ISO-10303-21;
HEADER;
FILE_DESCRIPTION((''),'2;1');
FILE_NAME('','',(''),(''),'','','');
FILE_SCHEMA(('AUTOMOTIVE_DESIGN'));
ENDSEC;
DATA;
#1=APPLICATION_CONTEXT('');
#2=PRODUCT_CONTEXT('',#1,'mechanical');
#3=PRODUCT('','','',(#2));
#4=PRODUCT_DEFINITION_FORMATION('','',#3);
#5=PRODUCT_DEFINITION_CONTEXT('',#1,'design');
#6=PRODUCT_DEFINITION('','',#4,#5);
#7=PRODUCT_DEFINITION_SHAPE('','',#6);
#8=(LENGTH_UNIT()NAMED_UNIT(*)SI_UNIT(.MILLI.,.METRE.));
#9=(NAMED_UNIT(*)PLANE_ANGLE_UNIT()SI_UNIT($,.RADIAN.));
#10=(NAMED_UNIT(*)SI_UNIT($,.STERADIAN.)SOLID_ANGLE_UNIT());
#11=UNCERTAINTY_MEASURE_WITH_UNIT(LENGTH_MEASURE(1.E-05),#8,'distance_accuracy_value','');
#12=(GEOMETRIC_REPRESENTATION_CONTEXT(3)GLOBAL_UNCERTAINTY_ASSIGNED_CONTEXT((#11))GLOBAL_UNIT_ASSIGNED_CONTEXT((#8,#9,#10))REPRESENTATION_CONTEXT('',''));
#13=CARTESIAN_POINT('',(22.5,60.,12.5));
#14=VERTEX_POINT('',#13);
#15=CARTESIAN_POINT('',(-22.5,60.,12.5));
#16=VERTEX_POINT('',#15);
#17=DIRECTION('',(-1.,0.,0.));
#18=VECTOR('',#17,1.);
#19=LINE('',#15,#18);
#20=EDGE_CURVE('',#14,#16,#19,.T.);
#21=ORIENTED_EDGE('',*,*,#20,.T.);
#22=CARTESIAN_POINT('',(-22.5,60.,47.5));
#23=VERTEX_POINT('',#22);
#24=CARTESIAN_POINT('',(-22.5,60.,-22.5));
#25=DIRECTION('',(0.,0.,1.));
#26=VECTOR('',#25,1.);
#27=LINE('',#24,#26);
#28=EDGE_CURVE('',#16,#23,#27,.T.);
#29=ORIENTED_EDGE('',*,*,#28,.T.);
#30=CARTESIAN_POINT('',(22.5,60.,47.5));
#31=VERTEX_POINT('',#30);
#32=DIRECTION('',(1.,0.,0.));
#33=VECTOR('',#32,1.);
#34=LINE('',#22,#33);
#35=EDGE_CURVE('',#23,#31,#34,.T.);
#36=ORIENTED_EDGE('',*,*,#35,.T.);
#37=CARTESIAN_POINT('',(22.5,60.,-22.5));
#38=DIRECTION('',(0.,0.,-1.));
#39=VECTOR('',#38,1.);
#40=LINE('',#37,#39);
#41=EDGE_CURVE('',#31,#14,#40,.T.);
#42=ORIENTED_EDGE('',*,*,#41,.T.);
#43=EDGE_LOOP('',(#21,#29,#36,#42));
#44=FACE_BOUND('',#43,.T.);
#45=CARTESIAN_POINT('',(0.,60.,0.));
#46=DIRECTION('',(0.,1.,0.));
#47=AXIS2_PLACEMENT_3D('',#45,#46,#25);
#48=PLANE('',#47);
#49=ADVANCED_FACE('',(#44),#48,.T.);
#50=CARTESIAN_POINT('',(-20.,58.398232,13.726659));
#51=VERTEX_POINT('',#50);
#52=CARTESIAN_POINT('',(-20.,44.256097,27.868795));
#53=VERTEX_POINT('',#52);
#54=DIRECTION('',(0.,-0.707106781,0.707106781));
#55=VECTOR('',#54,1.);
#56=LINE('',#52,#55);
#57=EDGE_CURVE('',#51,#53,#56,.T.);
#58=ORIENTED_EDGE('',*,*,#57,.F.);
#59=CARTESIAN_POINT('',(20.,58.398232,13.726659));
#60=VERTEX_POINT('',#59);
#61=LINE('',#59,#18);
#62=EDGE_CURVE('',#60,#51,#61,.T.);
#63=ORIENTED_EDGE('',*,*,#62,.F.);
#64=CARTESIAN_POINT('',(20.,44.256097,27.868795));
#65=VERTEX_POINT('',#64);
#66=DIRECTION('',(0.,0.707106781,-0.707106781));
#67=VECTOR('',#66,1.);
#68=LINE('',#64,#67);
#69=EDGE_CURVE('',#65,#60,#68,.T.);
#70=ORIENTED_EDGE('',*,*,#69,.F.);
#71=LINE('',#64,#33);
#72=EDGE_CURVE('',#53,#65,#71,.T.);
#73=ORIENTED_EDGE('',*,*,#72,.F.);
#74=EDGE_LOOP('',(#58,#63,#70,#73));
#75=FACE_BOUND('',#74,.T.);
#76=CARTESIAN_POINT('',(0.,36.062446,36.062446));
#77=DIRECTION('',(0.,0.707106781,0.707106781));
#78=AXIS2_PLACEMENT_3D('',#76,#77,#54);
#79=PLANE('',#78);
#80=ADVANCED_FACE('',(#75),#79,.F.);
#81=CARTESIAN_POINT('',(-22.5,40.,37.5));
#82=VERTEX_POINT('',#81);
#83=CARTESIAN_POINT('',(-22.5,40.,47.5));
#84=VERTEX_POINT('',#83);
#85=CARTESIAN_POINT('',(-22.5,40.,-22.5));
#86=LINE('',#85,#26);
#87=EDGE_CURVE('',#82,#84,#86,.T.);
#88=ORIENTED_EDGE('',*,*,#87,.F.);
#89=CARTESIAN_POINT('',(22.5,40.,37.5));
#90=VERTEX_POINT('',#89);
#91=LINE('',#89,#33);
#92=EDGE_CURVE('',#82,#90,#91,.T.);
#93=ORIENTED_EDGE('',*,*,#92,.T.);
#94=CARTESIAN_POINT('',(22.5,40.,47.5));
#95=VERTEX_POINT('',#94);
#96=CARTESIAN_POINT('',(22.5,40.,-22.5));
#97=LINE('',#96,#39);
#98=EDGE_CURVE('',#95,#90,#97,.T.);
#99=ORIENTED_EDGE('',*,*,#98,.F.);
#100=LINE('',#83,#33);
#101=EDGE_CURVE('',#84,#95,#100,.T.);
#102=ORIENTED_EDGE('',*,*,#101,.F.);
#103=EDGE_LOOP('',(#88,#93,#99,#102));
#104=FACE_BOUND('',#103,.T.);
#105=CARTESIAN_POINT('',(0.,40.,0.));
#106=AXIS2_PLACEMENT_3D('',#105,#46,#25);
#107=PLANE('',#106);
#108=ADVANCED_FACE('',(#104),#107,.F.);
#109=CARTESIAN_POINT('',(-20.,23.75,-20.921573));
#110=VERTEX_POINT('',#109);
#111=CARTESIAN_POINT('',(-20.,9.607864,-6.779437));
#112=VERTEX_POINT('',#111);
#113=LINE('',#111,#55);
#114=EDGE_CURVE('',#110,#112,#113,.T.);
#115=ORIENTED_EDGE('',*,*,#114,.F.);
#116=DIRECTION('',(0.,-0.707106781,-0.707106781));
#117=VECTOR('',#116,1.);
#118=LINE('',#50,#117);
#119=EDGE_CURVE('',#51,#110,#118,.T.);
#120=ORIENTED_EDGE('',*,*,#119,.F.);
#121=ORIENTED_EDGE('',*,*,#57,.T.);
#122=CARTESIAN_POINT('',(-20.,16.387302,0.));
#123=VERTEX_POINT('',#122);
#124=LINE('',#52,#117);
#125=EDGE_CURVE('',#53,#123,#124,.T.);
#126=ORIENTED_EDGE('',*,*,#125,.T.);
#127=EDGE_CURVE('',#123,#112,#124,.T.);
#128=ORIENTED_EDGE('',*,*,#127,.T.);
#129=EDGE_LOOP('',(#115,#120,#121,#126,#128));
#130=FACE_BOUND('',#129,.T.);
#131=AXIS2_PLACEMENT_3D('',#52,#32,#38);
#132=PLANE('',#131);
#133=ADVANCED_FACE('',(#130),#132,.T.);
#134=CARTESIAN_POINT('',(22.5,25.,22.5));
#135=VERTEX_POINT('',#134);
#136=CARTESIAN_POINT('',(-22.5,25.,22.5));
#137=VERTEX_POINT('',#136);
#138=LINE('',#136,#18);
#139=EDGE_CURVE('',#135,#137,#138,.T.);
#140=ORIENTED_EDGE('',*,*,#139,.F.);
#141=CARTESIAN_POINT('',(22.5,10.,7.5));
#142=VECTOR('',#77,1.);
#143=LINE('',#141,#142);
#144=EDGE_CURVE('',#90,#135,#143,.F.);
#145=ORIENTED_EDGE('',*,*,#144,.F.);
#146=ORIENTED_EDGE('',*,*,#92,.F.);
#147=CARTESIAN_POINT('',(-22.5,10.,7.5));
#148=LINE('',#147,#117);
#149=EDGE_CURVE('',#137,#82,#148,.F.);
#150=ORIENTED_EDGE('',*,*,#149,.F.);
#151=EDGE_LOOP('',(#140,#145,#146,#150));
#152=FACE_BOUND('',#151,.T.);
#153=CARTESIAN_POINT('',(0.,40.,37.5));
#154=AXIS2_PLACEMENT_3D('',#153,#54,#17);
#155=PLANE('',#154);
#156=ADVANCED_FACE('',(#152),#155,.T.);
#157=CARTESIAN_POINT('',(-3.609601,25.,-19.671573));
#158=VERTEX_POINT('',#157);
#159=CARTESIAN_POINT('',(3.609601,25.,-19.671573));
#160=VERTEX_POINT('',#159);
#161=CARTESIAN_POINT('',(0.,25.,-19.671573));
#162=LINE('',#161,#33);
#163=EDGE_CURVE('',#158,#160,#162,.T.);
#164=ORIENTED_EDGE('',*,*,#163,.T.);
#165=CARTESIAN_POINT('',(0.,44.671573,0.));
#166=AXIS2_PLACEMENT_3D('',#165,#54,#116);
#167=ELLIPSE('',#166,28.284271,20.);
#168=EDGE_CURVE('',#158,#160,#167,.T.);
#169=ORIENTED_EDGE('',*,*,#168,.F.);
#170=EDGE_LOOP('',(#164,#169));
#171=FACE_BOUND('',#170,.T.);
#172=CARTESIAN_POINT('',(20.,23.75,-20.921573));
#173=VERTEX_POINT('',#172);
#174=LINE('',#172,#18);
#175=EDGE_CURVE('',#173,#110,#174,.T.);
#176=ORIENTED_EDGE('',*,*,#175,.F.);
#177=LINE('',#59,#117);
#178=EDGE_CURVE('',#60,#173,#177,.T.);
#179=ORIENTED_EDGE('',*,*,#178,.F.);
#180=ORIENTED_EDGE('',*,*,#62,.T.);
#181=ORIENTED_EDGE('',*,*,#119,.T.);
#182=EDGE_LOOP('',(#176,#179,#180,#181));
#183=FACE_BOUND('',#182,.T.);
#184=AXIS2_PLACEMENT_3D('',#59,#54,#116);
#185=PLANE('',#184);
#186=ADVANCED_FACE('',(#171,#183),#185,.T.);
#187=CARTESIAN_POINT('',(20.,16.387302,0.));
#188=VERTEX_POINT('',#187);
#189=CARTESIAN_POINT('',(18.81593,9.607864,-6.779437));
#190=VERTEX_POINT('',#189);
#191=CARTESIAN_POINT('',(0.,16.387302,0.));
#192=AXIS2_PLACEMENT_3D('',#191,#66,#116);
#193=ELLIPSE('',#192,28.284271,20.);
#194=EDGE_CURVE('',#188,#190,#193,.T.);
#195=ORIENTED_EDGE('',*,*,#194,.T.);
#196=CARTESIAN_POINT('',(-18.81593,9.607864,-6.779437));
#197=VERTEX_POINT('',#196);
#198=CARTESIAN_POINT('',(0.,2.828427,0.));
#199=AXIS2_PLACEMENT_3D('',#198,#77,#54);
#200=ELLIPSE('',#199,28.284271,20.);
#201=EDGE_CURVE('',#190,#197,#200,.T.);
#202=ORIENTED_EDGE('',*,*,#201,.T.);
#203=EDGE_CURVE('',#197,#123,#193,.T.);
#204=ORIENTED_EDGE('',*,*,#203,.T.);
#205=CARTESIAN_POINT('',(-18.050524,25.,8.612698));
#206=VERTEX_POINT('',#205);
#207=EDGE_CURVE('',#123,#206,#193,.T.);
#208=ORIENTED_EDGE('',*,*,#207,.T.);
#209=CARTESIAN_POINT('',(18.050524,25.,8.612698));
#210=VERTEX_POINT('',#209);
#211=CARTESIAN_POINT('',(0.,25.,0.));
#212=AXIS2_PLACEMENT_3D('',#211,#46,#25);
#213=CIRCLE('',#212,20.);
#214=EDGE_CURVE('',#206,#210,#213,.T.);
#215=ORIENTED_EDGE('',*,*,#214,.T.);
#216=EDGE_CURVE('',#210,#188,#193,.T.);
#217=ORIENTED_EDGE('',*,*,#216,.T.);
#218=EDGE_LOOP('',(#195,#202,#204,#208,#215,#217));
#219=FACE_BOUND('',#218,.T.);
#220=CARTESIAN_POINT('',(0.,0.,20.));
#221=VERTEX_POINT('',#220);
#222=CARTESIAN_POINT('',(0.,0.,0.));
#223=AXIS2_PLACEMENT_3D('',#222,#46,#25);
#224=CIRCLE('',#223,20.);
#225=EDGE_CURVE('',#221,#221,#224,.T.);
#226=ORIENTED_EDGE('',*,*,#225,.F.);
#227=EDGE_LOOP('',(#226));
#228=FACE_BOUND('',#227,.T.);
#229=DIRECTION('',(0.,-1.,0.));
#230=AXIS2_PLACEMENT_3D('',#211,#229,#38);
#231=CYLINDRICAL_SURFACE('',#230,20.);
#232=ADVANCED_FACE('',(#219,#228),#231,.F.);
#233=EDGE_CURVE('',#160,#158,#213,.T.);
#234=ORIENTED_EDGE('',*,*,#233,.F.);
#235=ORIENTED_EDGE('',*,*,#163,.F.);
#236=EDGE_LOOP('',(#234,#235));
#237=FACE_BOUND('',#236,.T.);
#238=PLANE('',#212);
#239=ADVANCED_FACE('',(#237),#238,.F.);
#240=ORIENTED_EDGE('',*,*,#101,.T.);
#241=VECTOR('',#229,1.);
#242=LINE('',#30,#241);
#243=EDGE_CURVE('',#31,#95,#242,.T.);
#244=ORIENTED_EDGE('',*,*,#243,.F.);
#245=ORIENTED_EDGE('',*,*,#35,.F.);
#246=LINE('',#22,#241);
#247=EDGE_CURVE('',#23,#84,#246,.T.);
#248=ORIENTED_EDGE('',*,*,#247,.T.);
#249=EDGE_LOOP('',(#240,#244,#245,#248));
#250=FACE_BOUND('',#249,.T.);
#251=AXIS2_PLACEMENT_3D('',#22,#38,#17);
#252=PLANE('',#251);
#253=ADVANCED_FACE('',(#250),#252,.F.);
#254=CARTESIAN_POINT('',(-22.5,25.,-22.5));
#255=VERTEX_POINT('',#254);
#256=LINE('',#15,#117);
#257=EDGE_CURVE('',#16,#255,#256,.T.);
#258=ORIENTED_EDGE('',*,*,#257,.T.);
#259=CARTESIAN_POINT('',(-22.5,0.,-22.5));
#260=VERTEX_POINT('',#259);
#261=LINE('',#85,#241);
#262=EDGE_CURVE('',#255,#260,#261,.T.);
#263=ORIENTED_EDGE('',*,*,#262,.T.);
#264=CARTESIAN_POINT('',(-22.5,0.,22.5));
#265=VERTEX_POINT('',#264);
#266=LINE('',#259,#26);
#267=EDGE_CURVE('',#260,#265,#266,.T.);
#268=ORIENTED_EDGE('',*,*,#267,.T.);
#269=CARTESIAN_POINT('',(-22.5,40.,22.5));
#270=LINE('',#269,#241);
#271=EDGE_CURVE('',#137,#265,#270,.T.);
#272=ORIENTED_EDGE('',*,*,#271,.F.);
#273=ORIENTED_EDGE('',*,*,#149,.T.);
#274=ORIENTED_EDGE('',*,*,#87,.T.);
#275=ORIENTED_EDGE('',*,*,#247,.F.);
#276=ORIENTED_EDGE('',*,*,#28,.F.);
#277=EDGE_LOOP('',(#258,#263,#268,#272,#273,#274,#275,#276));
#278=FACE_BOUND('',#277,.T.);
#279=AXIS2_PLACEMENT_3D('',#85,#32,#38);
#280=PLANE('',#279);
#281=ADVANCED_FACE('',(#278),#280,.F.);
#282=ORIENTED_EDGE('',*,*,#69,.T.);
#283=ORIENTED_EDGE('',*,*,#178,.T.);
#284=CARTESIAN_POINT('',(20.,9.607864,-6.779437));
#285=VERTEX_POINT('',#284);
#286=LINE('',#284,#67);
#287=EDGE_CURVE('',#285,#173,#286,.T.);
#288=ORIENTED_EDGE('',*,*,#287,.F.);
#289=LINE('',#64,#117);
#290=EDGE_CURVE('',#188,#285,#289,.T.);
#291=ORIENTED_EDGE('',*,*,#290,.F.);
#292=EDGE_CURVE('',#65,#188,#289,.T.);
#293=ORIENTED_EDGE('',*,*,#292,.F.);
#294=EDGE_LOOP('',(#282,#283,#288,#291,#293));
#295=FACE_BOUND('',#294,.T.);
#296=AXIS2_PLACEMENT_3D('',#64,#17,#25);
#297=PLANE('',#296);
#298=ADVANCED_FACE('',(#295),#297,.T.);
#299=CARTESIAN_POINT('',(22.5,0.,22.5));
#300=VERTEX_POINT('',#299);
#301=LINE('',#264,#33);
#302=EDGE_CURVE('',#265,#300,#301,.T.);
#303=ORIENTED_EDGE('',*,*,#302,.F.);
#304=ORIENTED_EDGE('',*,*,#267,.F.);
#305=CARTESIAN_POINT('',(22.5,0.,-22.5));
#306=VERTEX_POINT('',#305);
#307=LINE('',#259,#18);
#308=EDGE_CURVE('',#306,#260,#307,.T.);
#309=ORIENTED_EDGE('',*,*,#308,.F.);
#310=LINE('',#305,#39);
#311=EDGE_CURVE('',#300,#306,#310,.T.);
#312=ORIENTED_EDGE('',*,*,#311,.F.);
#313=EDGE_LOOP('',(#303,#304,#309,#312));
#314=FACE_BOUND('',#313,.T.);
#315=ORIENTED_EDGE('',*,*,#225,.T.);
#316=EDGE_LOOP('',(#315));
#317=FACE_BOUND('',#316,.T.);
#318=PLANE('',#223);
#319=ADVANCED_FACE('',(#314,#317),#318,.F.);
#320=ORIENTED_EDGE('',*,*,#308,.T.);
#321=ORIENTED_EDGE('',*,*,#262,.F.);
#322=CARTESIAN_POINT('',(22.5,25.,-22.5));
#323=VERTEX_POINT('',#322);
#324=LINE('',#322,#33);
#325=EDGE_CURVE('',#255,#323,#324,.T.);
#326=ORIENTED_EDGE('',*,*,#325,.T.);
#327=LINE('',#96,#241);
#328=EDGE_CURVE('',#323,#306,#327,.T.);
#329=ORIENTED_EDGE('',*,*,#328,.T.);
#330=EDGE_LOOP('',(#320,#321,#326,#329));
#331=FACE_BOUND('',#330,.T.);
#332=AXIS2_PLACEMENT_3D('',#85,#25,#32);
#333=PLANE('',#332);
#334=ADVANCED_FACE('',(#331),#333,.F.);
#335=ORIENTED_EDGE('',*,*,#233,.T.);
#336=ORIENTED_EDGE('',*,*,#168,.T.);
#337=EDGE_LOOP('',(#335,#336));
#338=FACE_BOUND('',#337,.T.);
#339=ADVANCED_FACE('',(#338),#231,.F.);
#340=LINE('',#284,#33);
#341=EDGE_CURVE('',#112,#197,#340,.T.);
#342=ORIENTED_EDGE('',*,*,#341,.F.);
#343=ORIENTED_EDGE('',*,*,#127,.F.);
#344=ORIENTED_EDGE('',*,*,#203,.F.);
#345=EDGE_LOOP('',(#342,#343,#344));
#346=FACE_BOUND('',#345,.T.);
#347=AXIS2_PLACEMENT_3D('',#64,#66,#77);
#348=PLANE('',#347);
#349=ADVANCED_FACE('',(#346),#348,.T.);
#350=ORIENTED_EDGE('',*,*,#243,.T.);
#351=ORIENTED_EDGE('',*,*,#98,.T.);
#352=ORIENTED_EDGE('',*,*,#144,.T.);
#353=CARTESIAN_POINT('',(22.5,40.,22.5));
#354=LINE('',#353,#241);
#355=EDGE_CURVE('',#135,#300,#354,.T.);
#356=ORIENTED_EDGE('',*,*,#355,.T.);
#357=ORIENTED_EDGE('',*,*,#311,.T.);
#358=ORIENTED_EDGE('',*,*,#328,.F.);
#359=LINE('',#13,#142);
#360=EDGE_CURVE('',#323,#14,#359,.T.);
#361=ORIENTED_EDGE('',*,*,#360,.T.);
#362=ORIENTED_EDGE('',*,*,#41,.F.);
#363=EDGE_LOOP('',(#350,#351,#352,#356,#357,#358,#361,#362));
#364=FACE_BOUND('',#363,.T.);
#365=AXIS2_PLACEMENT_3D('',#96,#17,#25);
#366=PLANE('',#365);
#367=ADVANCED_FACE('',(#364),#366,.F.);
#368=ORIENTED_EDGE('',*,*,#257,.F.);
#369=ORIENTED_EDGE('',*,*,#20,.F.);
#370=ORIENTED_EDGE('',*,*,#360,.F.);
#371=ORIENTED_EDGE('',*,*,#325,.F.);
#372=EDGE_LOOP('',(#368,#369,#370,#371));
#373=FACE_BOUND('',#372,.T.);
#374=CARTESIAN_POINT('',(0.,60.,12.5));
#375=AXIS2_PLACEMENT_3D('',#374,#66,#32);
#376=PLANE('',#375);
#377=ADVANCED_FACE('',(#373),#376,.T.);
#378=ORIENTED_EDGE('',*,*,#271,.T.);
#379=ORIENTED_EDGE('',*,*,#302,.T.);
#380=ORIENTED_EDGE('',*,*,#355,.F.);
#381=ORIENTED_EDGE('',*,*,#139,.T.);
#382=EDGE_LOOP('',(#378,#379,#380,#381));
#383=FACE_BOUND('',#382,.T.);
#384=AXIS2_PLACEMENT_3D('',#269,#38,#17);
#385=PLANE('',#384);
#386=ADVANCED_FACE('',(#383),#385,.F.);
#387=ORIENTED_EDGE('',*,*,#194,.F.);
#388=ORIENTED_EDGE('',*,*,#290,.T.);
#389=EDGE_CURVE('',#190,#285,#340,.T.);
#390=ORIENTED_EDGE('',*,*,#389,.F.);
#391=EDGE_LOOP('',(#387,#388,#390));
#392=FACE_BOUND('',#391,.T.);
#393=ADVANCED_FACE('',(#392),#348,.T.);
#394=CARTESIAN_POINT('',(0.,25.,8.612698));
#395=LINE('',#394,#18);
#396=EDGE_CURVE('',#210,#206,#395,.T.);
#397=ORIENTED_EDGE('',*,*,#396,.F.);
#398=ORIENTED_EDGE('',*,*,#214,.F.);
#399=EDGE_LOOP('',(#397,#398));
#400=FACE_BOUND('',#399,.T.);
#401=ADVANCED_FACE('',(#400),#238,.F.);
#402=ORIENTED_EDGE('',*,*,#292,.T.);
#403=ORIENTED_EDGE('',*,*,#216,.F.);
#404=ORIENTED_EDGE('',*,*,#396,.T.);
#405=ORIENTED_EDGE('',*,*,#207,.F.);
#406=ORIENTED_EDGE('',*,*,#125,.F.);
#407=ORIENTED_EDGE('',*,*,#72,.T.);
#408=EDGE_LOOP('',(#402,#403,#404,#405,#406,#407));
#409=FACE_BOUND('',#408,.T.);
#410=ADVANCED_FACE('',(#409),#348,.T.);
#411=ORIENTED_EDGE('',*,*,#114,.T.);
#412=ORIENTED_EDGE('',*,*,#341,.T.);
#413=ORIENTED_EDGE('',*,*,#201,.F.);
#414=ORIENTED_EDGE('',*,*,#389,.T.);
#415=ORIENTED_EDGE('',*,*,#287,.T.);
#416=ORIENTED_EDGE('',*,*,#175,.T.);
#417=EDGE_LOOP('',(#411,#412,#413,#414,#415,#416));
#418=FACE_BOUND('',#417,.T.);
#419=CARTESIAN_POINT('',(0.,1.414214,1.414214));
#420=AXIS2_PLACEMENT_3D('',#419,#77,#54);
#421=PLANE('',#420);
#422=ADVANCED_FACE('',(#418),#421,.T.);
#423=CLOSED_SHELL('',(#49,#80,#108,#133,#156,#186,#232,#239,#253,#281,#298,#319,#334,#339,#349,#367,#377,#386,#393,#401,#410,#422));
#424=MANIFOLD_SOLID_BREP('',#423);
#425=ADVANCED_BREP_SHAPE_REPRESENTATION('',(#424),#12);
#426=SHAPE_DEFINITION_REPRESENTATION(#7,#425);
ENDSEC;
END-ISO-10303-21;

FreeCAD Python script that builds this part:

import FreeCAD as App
import Part
import Sketcher

V = App.Vector
Q = App.Units.Quantity


def edges_at(feature, points):
    """Names of the edges that pass closest to the given points."""
    edges = feature.Shape.Edges
    near = lambda p: min(range(len(edges)), key=lambda i: edges[i].distToShape(Part.Vertex(*p))[0])
    return sorted({f"Edge{near(p) + 1}" for p in points})


def add_polygon(sketch, points):
    """Adds a closed chain of lines whose ends are joined by coincident constraints."""
    first, n = sketch.GeometryCount, len(points)
    for a, b in zip(points, points[1:] + points[:1]):
        sketch.addGeometry(Part.LineSegment(App.Vector(*a, 0), App.Vector(*b, 0)), False)
    for i in range(n):
        sketch.addConstraint(Sketcher.Constraint("Coincident", first + i, 2, first + (i + 1) % n, 1))

doc = App.newDocument("Part")
body = doc.addObject("PartDesign::Body", "Body")

sketch1 = doc.addObject("Sketcher::SketchObject", "Sketch")
body.addObject(sketch1)
sketch1.AttachmentSupport = (doc.XZ_Plane, [""])
sketch1.MapMode = "FlatFace"
add_polygon(sketch1, [(-22, -22), (-22, 22), (22, 22), (22, -22)])
sketch1.addConstraint(Sketcher.Constraint("Vertical", 0))
sketch1.addConstraint(Sketcher.Constraint("Horizontal", 1))
sketch1.addConstraint(Sketcher.Constraint("Vertical", 2))
sketch1.addConstraint(Sketcher.Constraint("Horizontal", 3))
sketch1.addConstraint(Sketcher.Constraint("Symmetric", 0, 2, 2, 2, -1, 1))
sketch1.addConstraint(Sketcher.Constraint("Equal", 3, 0))
sketch1.addConstraint(Sketcher.Constraint("DistanceX", 1, 1, 1, 2, Q("45 mm")))
pad1 = doc.addObject("PartDesign::Pad", "Pad")
body.addObject(pad1)
pad1.Profile = sketch1
pad1.Length = 40
pad1.Reversed = True

sketch2 = doc.addObject("Sketcher::SketchObject", "Sketch001")
body.addObject(sketch2)
sketch2.AttachmentSupport = (doc.XZ_Plane, [""])
sketch2.MapMode = "FlatFace"
sketch2.AttachmentOffset = App.Placement(V(0, 0, -40), App.Rotation())
add_polygon(sketch2, [(-22, -22), (-22, 48), (22, 48), (22, -22)])
sketch2.addConstraint(Sketcher.Constraint("Vertical", 0))
sketch2.addConstraint(Sketcher.Constraint("Horizontal", 1))
sketch2.addConstraint(Sketcher.Constraint("Vertical", 2))
sketch2.addConstraint(Sketcher.Constraint("Horizontal", 3))
sketch2.addConstraint(Sketcher.Constraint("DistanceX", 1, 1, 1, 2, Q("45 mm")))
sketch2.addConstraint(Sketcher.Constraint("DistanceY", 0, 1, 0, 2, Q("70 mm")))
sketch2.addConstraint(Sketcher.Constraint("DistanceX", 0, 2, -1, 1, Q("22.5 mm")))
sketch2.addConstraint(Sketcher.Constraint("DistanceY", -1, 1, 0, 2, Q("47.5 mm")))
pad2 = doc.addObject("PartDesign::Pad", "Pad001")
body.addObject(pad2)
pad2.Profile = sketch2
pad2.Length = 20
pad2.Reversed = True
doc.recompute()

chamfer = doc.addObject("PartDesign::Chamfer", "Chamfer")
body.addObject(chamfer)
chamfer.Base = (pad2, edges_at(pad2, [(0, 40, 22.5)]))
chamfer.Size = 15
doc.recompute()

chamfer2 = doc.addObject("PartDesign::Chamfer", "Chamfer001")
body.addObject(chamfer2)
chamfer2.Base = (chamfer, edges_at(chamfer, [(0, 60, -22.5)]))
chamfer2.Size = 35

sketch3 = doc.addObject("Sketcher::SketchObject", "Sketch002")
body.addObject(sketch3)
sketch3.AttachmentSupport = (doc.XZ_Plane, [""])
sketch3.MapMode = "FlatFace"
sketch3.addGeometry(Part.Circle(V(0, 0, 0), V(0, 0, 1), 20), False)
sketch3.addConstraint(Sketcher.Constraint("Coincident", 0, 3, -1, 1))
sketch3.addConstraint(Sketcher.Constraint("Diameter", 0, Q("40 mm")))
pocket1 = doc.addObject("PartDesign::Pocket", "Pocket")
body.addObject(pocket1)
pocket1.Profile = sketch3
pocket1.Length = 25

sketch4 = doc.addObject("Sketcher::SketchObject", "Sketch003")
body.addObject(sketch4)
sketch4.Placement = App.Placement(V(0, 1.414214, 1.414214), App.Rotation(V(-1, 0, 0), V(0, -0.707106781, 0.707106781), V(0, 0.707106781, 0.707106781), "ZXY"))
add_polygon(sketch4, [(-20, -12), (-20, -32), (20, -32), (20, -12)])
sketch4.addConstraint(Sketcher.Constraint("Vertical", 0))
sketch4.addConstraint(Sketcher.Constraint("Horizontal", 1))
sketch4.addConstraint(Sketcher.Constraint("Vertical", 2))
sketch4.addConstraint(Sketcher.Constraint("Horizontal", 3))
sketch4.addConstraint(Sketcher.Constraint("DistanceX", 1, 1, 1, 2, Q("40 mm")))
sketch4.addConstraint(Sketcher.Constraint("DistanceY", 0, 2, 0, 1, Q("20 mm")))
sketch4.addConstraint(Sketcher.Constraint("DistanceX", 0, 2, -1, 1, Q("20 mm")))
sketch4.addConstraint(Sketcher.Constraint("DistanceY", 0, 2, -1, 1, Q("31.587572 mm")))
pocket2 = doc.addObject("PartDesign::Pocket", "Pocket001")
body.addObject(pocket2)
pocket2.Profile = sketch4
pocket2.Length = 49
pocket2.Reversed = True

doc.recompute()
